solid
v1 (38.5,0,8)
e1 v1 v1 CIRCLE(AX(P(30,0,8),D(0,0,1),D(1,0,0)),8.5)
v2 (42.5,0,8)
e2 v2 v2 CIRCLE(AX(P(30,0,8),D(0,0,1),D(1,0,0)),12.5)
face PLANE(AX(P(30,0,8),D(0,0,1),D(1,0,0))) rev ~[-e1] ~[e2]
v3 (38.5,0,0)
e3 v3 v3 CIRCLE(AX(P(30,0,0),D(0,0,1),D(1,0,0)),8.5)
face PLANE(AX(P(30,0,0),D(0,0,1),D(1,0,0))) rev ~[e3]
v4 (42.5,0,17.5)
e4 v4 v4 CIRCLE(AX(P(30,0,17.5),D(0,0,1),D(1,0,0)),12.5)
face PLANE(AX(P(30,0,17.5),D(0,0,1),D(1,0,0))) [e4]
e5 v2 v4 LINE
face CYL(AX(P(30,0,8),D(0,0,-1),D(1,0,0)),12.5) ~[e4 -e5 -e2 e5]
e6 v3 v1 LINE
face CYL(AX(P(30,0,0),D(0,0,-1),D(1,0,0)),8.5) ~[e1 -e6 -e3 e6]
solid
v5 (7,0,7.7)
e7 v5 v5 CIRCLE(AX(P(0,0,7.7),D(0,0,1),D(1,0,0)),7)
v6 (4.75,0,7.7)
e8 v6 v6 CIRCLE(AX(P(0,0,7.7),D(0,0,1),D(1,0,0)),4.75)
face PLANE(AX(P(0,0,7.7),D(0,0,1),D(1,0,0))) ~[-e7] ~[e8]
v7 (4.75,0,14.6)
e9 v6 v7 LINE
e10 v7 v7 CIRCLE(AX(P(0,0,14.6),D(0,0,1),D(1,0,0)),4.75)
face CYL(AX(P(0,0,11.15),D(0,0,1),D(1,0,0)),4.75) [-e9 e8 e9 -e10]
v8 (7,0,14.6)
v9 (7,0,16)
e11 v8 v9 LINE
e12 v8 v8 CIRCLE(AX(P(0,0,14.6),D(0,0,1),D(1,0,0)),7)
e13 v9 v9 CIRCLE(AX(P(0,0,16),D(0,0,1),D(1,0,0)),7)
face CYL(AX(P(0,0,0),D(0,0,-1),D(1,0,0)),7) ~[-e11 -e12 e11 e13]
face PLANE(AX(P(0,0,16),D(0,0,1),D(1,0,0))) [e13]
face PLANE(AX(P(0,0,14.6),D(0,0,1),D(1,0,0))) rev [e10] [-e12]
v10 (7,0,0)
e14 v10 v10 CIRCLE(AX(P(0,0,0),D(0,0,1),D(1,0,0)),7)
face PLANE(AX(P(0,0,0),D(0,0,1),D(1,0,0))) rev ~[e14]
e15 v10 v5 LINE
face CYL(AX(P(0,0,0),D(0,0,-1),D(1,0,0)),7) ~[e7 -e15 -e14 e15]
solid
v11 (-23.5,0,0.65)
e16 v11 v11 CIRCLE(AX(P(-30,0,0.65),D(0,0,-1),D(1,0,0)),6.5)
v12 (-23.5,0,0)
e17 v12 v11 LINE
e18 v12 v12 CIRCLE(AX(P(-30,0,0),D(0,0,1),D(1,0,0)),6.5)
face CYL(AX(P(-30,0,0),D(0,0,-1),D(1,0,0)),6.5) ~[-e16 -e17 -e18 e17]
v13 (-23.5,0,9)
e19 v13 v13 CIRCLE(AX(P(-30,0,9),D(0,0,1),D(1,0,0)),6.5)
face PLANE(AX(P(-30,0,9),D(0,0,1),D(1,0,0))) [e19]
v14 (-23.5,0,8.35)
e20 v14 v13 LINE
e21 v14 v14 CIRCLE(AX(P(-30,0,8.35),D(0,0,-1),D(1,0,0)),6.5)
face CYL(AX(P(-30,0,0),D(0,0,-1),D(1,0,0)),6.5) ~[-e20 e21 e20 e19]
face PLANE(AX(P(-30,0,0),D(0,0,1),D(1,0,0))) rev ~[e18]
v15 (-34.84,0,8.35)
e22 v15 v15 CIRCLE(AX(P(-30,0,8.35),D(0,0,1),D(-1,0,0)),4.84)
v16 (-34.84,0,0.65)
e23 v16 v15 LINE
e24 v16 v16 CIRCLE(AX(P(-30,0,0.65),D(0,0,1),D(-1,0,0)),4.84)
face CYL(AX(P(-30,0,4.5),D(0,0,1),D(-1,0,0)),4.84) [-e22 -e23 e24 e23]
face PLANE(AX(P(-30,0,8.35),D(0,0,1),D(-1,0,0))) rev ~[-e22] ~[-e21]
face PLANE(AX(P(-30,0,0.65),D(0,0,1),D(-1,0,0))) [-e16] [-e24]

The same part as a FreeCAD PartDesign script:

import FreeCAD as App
import Part
import Sketcher
from FreeCAD import Vector
Q = App.Units.Quantity


def add_polygon(sketch, points):
    """Adds a closed chain of lines whose ends are joined by coincident constraints."""
    first, n = sketch.GeometryCount, len(points)
    for a, b in zip(points, points[1:] + points[:1]):
        sketch.addGeometry(Part.LineSegment(App.Vector(*a, 0), App.Vector(*b, 0)), False)
    for i in range(n):
        sketch.addConstraint(Sketcher.Constraint("Coincident", first + i, 2, first + (i + 1) % n, 1))

doc = App.newDocument("Part")
body = doc.addObject("PartDesign::Body", "Body")

sketch1 = body.newObject("Sketcher::SketchObject", "Sketch")
sketch1.AttachmentSupport = (doc.getObject("XY_Plane"), [""])
sketch1.MapMode = "FlatFace"
sketch1.addGeometry(Part.Circle(Vector(0, 0, 0), Vector(0, 0, 1), 7), False)
sketch1.addConstraint(Sketcher.Constraint("Coincident", 0, 3, -1, 1))
sketch1.addConstraint(Sketcher.Constraint("Diameter", 0, Q("14 mm")))
pad1 = body.newObject("PartDesign::Pad", "Pad")
pad1.Profile = sketch1
pad1.Length = 16

sketch2 = body.newObject("Sketcher::SketchObject", "Sketch001")
sketch2.AttachmentSupport = (doc.getObject("XZ_Plane"), [""])
sketch2.MapMode = "FlatFace"
add_polygon(sketch2, [(4.8, 14.6), (4.8, 7.7), (7, 7.7), (7, 14.6)])
sketch2.addConstraint(Sketcher.Constraint("Vertical", 0))
sketch2.addConstraint(Sketcher.Constraint("Horizontal", 1))
sketch2.addConstraint(Sketcher.Constraint("Vertical", 2))
sketch2.addConstraint(Sketcher.Constraint("Horizontal", 3))
sketch2.addConstraint(Sketcher.Constraint("DistanceY", 0, 2, 0, 1, Q("6.9 mm")))
sketch2.addConstraint(Sketcher.Constraint("DistanceX", -1, 1, 1, 2, Q("7 mm")))
sketch2.addConstraint(Sketcher.Constraint("DistanceX", 1, 1, 1, 2, Q("2.25 mm")))
sketch2.addConstraint(Sketcher.Constraint("DistanceY", -1, 1, 0, 2, Q("7.7 mm")))
groove = body.newObject("PartDesign::Groove", "Groove")
groove.Profile = sketch2
groove.ReferenceAxis = (sketch2, ["V_Axis"])
groove.Angle = 360
body2 = doc.addObject("PartDesign::Body", "Body001")

sketch3 = body2.newObject("Sketcher::SketchObject", "Sketch002")
sketch3.AttachmentSupport = (doc.getObject("XY_Plane001"), [""])
sketch3.MapMode = "FlatFace"
sketch3.addGeometry(Part.Circle(Vector(30, 0, 0), Vector(0, 0, 1), 8), False)
sketch3.addConstraint(Sketcher.Constraint("PointOnObject", 0, 3, -1))
sketch3.addConstraint(Sketcher.Constraint("Diameter", 0, Q("17 mm")))
sketch3.addConstraint(Sketcher.Constraint("DistanceX", -1, 1, 0, 3, Q("30 mm")))
pad2 = body2.newObject("PartDesign::Pad", "Pad001")
pad2.Profile = sketch3
pad2.Length = 8

sketch4 = body2.newObject("Sketcher::SketchObject", "Sketch003")
sketch4.AttachmentSupport = (doc.getObject("XY_Plane001"), [""])
sketch4.MapMode = "FlatFace"
sketch4.AttachmentOffset = App.Placement(Vector(0, 0, 8), App.Rotation())
sketch4.addGeometry(Part.Circle(Vector(30, 0, 0), Vector(0, 0, 1), 12), False)
sketch4.addConstraint(Sketcher.Constraint("PointOnObject", 0, 3, -1))
sketch4.addConstraint(Sketcher.Constraint("Diameter", 0, Q("25 mm")))
sketch4.addConstraint(Sketcher.Constraint("DistanceX", -1, 1, 0, 3, Q("30 mm")))
pad3 = body2.newObject("PartDesign::Pad", "Pad002")
pad3.Profile = sketch4
pad3.Length = 9.5
body3 = doc.addObject("PartDesign::Body", "Body002")

sketch5 = body3.newObject("Sketcher::SketchObject", "Sketch004")
sketch5.AttachmentSupport = (doc.getObject("XY_Plane002"), [""])
sketch5.MapMode = "FlatFace"
sketch5.addGeometry(Part.Circle(Vector(-30, 0, 0), Vector(0, 0, 1), 6), False)
sketch5.addConstraint(Sketcher.Constraint("PointOnObject", 0, 3, -1))
sketch5.addConstraint(Sketcher.Constraint("Diameter", 0, Q("13 mm")))
sketch5.addConstraint(Sketcher.Constraint("DistanceX", 0, 3, -1, 1, Q("30 mm")))
pad4 = body3.newObject("PartDesign::Pad", "Pad003")
pad4.Profile = sketch5
pad4.Length = 9

sketch6 = body3.newObject("Sketcher::SketchObject", "Sketch005")
sketch6.AttachmentSupport = (doc.getObject("XZ_Plane002"), [""])
sketch6.MapMode = "FlatFace"
add_polygon(sketch6, [(-36.5, 8.3), (-36.5, 0.7), (-34.8, 0.7), (-34.8, 8.3)])
sketch6.addGeometry(Part.LineSegment(Vector(-30, 0.7, 0), Vector(-30, 8.3, 0)), True)
sketch6.addConstraint(Sketcher.Constraint("Vertical", 0))
sketch6.addConstraint(Sketcher.Constraint("Horizontal", 1))
sketch6.addConstraint(Sketcher.Constraint("Vertical", 2))
sketch6.addConstraint(Sketcher.Constraint("Horizontal", 3))
sketch6.addConstraint(Sketcher.Constraint("Vertical", 4))
sketch6.addConstraint(Sketcher.Constraint("Horizontal", 1, 2, 4, 1))
sketch6.addConstraint(Sketcher.Constraint("Horizontal", 3, 2, 4, 2))
sketch6.addConstraint(Sketcher.Constraint("DistanceY", 0, 2, 0, 1, Q("7.7 mm")))
sketch6.addConstraint(Sketcher.Constraint("DistanceX", 4, 1, -1, 1, Q("30 mm")))
sketch6.addConstraint(Sketcher.Constraint("DistanceX", 1, 1, 1, 2, Q("1.66 mm")))
sketch6.addConstraint(Sketcher.Constraint("DistanceX", 0, 2, -1, 1, Q("36.5 mm")))
sketch6.addConstraint(Sketcher.Constraint("DistanceY", -1, 1, 0, 2, Q("0.65 mm")))
groove2 = body3.newObject("PartDesign::Groove", "Groove001")
groove2.Profile = sketch6
groove2.ReferenceAxis = (sketch6, ["Axis0"])
groove2.Angle = 360

doc.recompute()
